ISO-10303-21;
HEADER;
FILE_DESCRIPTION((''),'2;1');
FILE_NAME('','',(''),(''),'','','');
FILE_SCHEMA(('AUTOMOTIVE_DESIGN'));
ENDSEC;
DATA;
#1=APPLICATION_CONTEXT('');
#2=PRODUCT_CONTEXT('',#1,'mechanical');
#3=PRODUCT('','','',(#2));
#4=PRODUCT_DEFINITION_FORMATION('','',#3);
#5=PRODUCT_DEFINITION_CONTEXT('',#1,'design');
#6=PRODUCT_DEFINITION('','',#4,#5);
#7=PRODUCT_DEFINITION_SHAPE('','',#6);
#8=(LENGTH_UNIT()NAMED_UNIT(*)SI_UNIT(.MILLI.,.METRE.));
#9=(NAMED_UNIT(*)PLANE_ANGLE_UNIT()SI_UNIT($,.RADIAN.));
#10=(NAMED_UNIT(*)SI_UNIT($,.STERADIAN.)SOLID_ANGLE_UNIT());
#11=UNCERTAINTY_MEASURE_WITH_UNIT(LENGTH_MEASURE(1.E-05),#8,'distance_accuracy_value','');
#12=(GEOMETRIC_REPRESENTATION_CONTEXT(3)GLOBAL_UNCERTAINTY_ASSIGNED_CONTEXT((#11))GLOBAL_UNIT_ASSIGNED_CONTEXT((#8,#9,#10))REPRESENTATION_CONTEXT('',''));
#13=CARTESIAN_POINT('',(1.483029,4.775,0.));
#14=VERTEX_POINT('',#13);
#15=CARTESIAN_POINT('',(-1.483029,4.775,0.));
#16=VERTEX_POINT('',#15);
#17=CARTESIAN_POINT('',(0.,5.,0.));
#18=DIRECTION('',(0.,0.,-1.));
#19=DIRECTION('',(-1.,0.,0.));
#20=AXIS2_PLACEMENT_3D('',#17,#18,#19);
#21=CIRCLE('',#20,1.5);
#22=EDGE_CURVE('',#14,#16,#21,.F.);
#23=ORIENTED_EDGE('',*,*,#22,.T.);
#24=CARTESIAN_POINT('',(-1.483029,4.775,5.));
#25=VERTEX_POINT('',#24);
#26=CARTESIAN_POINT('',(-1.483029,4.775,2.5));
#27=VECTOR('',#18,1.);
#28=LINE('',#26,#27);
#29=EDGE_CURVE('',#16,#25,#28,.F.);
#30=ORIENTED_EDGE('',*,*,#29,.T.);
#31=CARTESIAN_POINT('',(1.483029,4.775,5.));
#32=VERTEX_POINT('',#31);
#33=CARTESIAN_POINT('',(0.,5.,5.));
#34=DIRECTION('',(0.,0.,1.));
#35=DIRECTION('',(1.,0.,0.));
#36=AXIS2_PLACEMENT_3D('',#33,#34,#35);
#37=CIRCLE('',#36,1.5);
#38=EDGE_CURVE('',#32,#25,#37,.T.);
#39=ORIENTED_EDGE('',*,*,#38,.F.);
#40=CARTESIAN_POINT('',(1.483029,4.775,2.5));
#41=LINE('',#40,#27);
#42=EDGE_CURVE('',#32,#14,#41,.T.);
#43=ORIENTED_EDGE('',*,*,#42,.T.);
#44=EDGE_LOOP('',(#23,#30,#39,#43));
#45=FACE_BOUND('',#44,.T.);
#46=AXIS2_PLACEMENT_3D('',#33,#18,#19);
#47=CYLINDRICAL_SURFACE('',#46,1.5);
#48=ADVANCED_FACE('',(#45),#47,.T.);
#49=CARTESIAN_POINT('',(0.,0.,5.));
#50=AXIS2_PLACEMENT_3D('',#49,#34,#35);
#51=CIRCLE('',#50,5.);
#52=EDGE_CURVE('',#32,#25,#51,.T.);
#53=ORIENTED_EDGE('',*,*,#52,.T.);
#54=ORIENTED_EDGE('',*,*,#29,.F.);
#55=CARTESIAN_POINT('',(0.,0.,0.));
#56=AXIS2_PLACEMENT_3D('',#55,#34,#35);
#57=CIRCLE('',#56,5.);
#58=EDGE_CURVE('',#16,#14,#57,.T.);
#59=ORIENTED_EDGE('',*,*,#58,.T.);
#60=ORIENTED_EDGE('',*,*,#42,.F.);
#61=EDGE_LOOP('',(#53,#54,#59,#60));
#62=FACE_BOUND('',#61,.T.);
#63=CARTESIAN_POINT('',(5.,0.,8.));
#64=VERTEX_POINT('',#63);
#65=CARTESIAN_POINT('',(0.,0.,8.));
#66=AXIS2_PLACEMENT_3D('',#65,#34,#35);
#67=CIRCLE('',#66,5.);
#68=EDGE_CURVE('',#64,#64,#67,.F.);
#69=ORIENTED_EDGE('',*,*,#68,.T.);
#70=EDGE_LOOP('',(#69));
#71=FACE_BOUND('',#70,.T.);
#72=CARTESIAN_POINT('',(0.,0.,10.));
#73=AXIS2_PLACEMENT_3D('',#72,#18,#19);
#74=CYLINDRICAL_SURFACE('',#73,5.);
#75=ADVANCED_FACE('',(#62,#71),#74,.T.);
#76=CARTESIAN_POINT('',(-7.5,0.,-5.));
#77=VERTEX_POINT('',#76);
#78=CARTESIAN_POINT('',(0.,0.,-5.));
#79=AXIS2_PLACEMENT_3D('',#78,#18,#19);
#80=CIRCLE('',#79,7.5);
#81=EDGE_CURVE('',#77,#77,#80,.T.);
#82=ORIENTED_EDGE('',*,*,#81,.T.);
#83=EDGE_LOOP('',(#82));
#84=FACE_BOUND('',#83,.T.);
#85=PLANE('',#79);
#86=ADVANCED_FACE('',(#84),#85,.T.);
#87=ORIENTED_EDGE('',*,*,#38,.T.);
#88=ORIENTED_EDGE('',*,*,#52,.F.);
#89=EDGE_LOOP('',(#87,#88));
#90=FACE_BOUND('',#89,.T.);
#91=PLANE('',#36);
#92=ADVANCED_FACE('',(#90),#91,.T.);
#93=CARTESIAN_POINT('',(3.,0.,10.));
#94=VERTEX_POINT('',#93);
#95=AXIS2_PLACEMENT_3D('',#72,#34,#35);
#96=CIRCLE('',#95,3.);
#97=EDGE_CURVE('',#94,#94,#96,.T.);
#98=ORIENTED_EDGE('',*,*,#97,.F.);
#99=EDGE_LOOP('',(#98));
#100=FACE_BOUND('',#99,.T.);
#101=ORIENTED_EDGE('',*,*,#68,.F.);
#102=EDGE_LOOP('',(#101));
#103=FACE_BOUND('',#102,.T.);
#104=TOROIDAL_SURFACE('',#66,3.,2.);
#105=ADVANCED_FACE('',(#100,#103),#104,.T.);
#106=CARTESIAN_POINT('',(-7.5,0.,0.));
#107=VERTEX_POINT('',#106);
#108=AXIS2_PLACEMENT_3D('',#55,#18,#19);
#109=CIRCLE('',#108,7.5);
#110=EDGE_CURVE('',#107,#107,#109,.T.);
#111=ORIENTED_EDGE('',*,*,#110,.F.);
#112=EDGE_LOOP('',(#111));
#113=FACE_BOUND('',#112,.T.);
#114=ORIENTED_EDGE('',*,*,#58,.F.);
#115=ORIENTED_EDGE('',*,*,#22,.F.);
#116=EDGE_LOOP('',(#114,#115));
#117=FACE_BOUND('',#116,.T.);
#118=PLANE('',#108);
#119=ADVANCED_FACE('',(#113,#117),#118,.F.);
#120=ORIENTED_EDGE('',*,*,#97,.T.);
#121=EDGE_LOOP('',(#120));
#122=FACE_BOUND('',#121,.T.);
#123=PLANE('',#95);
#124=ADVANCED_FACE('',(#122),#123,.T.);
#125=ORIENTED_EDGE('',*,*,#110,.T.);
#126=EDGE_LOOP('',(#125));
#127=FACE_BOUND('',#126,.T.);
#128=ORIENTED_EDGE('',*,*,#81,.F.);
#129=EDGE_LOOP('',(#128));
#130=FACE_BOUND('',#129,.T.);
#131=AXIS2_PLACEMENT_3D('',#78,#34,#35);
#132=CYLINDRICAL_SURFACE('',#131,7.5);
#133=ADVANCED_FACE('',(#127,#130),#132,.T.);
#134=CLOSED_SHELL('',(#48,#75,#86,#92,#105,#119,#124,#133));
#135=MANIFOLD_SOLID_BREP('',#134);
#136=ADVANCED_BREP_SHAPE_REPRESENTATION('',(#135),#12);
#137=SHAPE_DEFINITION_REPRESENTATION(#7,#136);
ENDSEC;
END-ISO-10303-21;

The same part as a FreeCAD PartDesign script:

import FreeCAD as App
import Part
import Sketcher

V = App.Vector
Q = App.Units.Quantity


def edges_at(feature, points):
    """Names of the edges that pass closest to the given points."""
    edges = feature.Shape.Edges
    near = lambda p: min(range(len(edges)), key=lambda i: edges[i].distToShape(Part.Vertex(*p))[0])
    return sorted({f"Edge{near(p) + 1}" for p in points})

doc = App.newDocument("Part")
body = doc.addObject("PartDesign::Body", "Body")

# Sketch on XY plane
sketch1 = body.newObject("Sketcher::SketchObject", "Sketch")
sketch1.AttachmentSupport = (doc.getObject("XY_Plane"), [""])
sketch1.MapMode = "FlatFace"
sketch1.addGeometry(Part.Circle(V(0, 0, 0), V(0, 0, 1), 5), False)
sketch1.addConstraint([
    Sketcher.Constraint("Coincident", 0, 3, -1, 1),
    Sketcher.Constraint("Diameter", 0, Q("10 mm")),
])
pad1 = body.newObject("PartDesign::Pad", "Pad")
pad1.Profile = sketch1
pad1.Length = 10

# Sketch on XY plane
sketch2 = body.newObject("Sketcher::SketchObject", "Sketch001")
sketch2.AttachmentSupport = (doc.getObject("XY_Plane"), [""])
sketch2.MapMode = "FlatFace"
sketch2.addGeometry(Part.Circle(V(0, 0, 0), V(0, 0, 1), 8), False)
sketch2.addConstraint([
    Sketcher.Constraint("Coincident", 0, 3, -1, 1),
    Sketcher.Constraint("Diameter", 0, Q("15 mm")),
])
pad2 = body.newObject("PartDesign::Pad", "Pad001")
pad2.Profile = sketch2
pad2.Length = 5
pad2.Reversed = True
doc.recompute()

fillet = body.newObject("PartDesign::Fillet", "Fillet")
fillet.Base = (pad2, edges_at(pad2, [(-5, 0, 10)]))
fillet.Radius = 2

# Sketch on XY plane
sketch3 = body.newObject("Sketcher::SketchObject", "Sketch002")
sketch3.AttachmentSupport = (doc.getObject("XY_Plane"), [""])
sketch3.MapMode = "FlatFace"
sketch3.addGeometry(Part.Circle(V(0, 5, 0), V(0, 0, 1), 1.5), False)
sketch3.addConstraint([
    Sketcher.Constraint("PointOnObject", 0, 3, -2),
    Sketcher.Constraint("Diameter", 0, Q("3 mm")),
    Sketcher.Constraint("DistanceY", -1, 1, 0, 3, Q("5 mm")),
])
pad3 = body.newObject("PartDesign::Pad", "Pad002")
pad3.Profile = sketch3
pad3.Length = 5

doc.recompute()
